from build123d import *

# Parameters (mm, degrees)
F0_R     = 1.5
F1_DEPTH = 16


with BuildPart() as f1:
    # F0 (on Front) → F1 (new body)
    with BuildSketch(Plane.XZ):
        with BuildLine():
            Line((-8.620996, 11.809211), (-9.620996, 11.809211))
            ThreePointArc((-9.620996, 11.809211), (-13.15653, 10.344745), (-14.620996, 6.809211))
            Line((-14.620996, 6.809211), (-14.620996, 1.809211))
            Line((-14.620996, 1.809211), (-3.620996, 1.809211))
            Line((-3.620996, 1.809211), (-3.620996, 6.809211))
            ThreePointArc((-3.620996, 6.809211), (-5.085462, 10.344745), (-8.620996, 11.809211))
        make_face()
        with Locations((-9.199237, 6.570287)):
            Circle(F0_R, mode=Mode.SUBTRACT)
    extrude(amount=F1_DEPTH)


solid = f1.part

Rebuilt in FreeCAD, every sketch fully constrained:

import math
import FreeCAD as App
import Part
import Sketcher

V = App.Vector
Q = App.Units.Quantity

doc = App.newDocument("Part")
params = doc.addObject("Spreadsheet::Sheet", "Params")
for row, (alias, value) in enumerate([
    ("sketch1_diameter", "3 mm"),
    ("sketch1_radius", "5 mm"),
    ("sketch1_width", "1 mm"),
    ("sketch1_height", "5 mm"),
    ("pad1_length", "16 mm"),
], start=1):
    params.set(f"A{row}", alias)
    params.set(f"B{row}", "=" + value)
    params.setAlias(f"B{row}", alias)

body = doc.addObject("PartDesign::Body", "Body")

# Sketch on XZ plane
sketch1 = body.newObject("Sketcher::SketchObject", "Sketch")
sketch1.AttachmentSupport = (doc.getObject("XZ_Plane"), [""])
sketch1.MapMode = "FlatFace"
sketch1.addGeometry([
    Part.LineSegment(V(-8.620996, 11.809211, 0), V(-9.620996, 11.809211, 0)),  # 0
    Part.ArcOfCircle(Part.Circle(V(-9.620996, 6.809211, 0), V(0, 0, 1), 5), math.radians(89.999996), math.radians(180.000004)),  # 1
    Part.LineSegment(V(-14.620996, 6.809211, 0), V(-14.620996, 1.809211, 0)),  # 2
    Part.LineSegment(V(-14.620996, 1.809211, 0), V(-3.620996, 1.809211, 0)),  # 3
    Part.LineSegment(V(-3.620996, 1.809211, 0), V(-3.620996, 6.809211, 0)),  # 4
    Part.ArcOfCircle(Part.Circle(V(-8.620996, 6.809211, 0), V(0, 0, 1), 5), math.radians(-0.000004), math.radians(90.000004)),  # 5
    Part.Circle(V(-9.199237, 6.570287, 0), V(0, 0, 1), 1.5),  # 6
], False)
sketch1.addConstraint([
    Sketcher.Constraint("Tangent", 0, 2, 1, 1),
    Sketcher.Constraint("Tangent", 1, 2, 2, 1),
    Sketcher.Constraint("Coincident", 2, 2, 3, 1),
    Sketcher.Constraint("Coincident", 3, 2, 4, 1),
    Sketcher.Constraint("Tangent", 4, 2, 5, 1),
    Sketcher.Constraint("Tangent", 5, 2, 0, 1),
    Sketcher.Constraint("Horizontal", 0),
    Sketcher.Constraint("Vertical", 2),
    Sketcher.Constraint("Horizontal", 3),
    Sketcher.Constraint("Vertical", 4),
    Sketcher.Constraint("Equal", 1, 5),
    Sketcher.Constraint("Diameter", 6, Q("3 mm")),
    Sketcher.Constraint("Radius", 1, Q("5 mm")),
    Sketcher.Constraint("DistanceX", 0, 2, 0, 1, Q("1 mm")),
    Sketcher.Constraint("DistanceY", 2, 2, 2, 1, Q("5 mm")),
    Sketcher.Constraint("DistanceY", -1, 1, 1, 3, Q("6.809211 mm")),
    Sketcher.Constraint("DistanceX", 1, 3, 6, 3, Q("0.421759 mm")),
    Sketcher.Constraint("DistanceX", 1, 3, -1, 1, Q("9.620996 mm")),
    Sketcher.Constraint("DistanceY", -1, 1, 6, 3, Q("6.570287 mm")),
])
sketch1.setExpression("Constraints[11]", "Params.sketch1_diameter")
sketch1.setExpression("Constraints[12]", "Params.sketch1_radius")
sketch1.setExpression("Constraints[13]", "Params.sketch1_width")
sketch1.setExpression("Constraints[14]", "Params.sketch1_height")
pad1 = body.newObject("PartDesign::Pad", "Pad")
pad1.Profile = sketch1
pad1.setExpression("Length", "Params.pad1_length")

doc.recompute()
